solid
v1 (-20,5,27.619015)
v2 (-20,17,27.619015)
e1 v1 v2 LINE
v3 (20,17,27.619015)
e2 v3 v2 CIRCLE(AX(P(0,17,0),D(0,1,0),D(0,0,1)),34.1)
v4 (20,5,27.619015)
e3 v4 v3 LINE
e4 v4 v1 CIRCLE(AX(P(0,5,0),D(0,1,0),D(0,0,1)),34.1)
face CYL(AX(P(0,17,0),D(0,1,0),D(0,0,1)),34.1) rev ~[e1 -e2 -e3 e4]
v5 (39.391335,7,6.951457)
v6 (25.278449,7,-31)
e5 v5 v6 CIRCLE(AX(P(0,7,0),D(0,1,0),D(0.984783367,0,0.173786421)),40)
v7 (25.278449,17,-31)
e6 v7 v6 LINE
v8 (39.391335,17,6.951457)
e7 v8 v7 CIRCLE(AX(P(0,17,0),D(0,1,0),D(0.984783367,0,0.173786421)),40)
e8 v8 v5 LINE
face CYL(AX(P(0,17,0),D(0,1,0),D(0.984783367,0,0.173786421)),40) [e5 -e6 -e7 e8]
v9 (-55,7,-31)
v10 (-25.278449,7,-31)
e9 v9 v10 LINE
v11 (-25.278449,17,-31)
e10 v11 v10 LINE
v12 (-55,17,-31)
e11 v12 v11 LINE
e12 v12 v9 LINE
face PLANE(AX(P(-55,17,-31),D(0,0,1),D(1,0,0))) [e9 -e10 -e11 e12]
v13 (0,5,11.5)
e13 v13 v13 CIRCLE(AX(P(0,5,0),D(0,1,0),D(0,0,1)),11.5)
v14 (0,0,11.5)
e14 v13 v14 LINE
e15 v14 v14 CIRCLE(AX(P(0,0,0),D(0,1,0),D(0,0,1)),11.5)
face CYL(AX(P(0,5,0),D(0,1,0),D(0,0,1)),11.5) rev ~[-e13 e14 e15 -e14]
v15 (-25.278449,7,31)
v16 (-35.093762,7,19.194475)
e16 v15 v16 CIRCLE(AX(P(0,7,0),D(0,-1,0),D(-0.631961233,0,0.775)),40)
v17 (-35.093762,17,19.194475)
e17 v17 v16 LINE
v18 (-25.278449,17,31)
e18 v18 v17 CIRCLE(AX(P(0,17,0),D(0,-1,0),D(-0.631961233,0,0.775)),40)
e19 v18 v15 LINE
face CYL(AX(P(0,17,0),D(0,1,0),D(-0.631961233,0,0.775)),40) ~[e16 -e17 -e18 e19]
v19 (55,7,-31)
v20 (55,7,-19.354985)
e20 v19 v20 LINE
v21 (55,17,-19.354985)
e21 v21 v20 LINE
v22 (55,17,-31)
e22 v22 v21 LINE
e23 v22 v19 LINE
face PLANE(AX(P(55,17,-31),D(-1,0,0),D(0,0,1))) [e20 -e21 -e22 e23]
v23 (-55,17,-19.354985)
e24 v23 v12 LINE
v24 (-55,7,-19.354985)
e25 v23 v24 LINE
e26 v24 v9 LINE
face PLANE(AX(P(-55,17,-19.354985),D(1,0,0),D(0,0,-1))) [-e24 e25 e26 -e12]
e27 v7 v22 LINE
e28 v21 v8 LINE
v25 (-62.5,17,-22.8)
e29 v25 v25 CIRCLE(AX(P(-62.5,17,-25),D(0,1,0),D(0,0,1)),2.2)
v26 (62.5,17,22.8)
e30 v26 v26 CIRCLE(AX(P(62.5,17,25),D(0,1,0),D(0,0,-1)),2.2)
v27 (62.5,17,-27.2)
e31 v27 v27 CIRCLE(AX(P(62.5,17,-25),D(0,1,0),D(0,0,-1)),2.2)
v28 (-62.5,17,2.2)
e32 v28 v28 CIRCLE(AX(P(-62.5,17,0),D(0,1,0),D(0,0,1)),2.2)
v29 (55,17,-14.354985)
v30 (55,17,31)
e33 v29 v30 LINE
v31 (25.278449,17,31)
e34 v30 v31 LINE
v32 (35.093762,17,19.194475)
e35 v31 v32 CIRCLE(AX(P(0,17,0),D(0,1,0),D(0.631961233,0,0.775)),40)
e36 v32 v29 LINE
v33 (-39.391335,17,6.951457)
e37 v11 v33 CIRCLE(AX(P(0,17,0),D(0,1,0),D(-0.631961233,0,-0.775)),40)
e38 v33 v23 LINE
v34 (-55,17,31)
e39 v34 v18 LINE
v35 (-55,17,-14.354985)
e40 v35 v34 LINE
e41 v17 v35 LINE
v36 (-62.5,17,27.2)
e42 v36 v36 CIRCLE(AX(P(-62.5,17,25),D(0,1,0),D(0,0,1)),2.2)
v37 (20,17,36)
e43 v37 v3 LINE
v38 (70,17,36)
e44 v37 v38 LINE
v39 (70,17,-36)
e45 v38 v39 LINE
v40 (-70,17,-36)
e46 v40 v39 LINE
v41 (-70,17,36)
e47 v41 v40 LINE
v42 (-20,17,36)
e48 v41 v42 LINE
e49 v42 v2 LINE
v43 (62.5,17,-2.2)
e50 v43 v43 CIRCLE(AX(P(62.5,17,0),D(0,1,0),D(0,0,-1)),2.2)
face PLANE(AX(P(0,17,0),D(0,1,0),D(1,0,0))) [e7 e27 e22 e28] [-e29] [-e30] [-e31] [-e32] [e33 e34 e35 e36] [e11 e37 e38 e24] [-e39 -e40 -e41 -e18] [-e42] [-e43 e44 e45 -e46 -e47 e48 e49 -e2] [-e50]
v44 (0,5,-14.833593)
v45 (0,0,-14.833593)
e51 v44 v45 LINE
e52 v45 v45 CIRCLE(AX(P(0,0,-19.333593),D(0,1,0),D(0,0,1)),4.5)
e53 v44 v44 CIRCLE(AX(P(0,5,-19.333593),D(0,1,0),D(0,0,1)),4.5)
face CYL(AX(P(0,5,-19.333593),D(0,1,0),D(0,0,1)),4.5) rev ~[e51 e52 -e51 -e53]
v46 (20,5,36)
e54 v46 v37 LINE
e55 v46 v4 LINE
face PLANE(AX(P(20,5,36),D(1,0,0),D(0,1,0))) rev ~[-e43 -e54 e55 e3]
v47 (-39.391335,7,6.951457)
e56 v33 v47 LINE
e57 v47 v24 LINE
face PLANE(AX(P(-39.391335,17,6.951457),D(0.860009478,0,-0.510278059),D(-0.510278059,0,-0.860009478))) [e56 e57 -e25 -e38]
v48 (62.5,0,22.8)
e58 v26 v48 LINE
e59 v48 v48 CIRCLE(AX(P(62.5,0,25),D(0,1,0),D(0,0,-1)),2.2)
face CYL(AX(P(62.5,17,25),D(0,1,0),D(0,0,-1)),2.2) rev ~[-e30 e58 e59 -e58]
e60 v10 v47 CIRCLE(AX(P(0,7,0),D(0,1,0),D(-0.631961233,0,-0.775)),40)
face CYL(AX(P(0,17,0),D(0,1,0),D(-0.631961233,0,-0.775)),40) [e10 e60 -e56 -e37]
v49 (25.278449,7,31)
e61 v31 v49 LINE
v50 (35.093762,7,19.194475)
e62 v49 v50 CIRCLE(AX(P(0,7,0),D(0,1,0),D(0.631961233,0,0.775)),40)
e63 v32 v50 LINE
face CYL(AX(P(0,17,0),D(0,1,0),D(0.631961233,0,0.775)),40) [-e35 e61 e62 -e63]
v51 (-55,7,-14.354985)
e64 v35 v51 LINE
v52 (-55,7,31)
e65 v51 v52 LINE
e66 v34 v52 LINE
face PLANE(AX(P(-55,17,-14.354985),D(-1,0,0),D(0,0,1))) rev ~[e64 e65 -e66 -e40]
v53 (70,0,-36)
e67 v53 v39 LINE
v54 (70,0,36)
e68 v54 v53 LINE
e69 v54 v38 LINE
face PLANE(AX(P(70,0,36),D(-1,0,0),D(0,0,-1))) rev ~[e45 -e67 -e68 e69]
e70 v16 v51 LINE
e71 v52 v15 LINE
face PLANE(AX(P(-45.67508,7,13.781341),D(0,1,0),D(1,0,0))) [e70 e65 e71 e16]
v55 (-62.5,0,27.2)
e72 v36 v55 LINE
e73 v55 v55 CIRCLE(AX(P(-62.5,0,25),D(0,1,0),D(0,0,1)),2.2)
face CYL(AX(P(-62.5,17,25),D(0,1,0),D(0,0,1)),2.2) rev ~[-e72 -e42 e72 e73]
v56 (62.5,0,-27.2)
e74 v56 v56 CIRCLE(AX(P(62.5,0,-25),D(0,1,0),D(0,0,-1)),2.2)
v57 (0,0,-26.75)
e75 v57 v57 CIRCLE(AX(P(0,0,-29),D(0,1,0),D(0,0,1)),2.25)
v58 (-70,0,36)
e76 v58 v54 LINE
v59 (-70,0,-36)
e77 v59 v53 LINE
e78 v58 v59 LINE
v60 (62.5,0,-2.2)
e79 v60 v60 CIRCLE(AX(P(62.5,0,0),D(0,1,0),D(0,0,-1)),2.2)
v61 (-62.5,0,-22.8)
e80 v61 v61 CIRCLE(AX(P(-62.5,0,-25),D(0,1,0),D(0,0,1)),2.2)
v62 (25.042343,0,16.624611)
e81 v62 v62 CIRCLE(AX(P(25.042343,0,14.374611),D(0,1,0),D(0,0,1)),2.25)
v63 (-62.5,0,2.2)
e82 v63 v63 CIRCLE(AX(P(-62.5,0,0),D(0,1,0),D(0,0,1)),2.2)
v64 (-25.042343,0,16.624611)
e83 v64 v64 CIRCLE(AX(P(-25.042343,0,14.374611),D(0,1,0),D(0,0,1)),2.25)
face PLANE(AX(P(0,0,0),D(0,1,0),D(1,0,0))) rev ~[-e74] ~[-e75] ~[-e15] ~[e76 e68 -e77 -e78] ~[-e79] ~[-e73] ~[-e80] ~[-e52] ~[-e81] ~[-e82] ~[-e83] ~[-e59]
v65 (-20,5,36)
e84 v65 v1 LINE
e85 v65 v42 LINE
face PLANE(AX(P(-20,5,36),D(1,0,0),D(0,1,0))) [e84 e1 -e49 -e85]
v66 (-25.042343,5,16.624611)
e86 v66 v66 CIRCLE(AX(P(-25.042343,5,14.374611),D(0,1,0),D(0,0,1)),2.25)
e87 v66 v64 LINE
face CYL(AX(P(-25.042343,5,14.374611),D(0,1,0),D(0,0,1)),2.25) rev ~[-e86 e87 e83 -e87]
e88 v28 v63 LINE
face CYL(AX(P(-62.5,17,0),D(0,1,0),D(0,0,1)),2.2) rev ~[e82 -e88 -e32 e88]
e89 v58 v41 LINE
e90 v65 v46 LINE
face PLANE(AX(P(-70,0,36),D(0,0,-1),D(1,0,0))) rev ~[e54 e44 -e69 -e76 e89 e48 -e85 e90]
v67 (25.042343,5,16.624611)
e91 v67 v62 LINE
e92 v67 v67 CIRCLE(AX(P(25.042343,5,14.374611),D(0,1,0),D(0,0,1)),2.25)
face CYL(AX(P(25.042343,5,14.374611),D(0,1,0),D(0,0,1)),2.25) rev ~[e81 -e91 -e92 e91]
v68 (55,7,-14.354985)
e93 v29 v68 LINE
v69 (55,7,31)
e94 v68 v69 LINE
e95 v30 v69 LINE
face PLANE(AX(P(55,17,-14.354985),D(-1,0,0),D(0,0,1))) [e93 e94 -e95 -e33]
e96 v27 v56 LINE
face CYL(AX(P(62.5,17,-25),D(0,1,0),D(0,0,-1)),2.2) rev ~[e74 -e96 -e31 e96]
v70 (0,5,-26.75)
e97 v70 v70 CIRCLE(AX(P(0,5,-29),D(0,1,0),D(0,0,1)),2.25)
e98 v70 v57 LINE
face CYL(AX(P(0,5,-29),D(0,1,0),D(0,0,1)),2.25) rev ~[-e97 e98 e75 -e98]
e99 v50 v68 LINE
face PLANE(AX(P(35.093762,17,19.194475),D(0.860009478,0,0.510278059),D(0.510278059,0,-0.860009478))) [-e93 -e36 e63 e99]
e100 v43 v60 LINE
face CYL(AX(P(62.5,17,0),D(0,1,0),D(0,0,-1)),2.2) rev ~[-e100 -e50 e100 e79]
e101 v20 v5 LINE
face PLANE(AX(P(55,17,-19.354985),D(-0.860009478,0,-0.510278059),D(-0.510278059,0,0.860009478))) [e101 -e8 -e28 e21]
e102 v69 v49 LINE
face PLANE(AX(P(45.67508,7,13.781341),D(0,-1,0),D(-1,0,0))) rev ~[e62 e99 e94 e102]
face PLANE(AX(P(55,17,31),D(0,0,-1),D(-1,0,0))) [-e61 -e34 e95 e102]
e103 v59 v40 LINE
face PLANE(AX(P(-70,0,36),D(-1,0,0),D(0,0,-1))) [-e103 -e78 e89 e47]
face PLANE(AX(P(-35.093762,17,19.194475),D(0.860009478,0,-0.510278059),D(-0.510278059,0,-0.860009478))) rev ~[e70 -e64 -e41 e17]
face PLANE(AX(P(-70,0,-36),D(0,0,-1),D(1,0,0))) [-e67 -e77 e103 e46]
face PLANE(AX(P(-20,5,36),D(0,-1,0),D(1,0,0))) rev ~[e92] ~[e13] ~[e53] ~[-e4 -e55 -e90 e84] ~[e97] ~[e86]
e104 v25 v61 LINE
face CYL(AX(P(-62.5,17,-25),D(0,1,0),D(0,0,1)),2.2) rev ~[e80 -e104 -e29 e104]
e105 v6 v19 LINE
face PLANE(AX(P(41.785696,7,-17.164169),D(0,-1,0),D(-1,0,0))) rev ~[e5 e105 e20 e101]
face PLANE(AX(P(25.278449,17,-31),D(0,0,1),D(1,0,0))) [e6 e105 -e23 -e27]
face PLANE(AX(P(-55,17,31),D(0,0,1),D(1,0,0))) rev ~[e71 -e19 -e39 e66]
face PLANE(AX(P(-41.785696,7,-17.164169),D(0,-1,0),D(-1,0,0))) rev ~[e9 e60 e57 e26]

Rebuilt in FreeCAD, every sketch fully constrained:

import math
import FreeCAD as App
import Part
import Sketcher

V = App.Vector


def add_polygon(sketch, points):
    """Adds a closed chain of lines whose ends are joined by coincident constraints."""
    first, n = sketch.GeometryCount, len(points)
    for a, b in zip(points, points[1:] + points[:1]):
        sketch.addGeometry(Part.LineSegment(App.Vector(*a, 0), App.Vector(*b, 0)), False)
    for i in range(n):
        sketch.addConstraint(Sketcher.Constraint("Coincident", first + i, 2, first + (i + 1) % n, 1))

doc = App.newDocument("Part")
body = doc.addObject("PartDesign::Body", "Body")

sketch1 = doc.addObject("Sketcher::SketchObject", "Sketch")
body.addObject(sketch1)
sketch1.AttachmentSupport = (doc.XZ_Plane, [""])
sketch1.MapMode = "FlatFace"
add_polygon(sketch1, [(-70, -36), (-70, 36), (70, 36), (70, -36)])
sketch1.addConstraint(Sketcher.Constraint("Vertical", 0))
sketch1.addConstraint(Sketcher.Constraint("Horizontal", 1))
sketch1.addConstraint(Sketcher.Constraint("Vertical", 2))
sketch1.addConstraint(Sketcher.Constraint("Horizontal", 3))
sketch1.addConstraint(Sketcher.Constraint("Symmetric", 0, 2, 2, 2, -1, 1))
sketch1.addConstraint(Sketcher.Constraint("DistanceX", 1, 1, 1, 2, 140.0))
sketch1.addConstraint(Sketcher.Constraint("DistanceY", 0, 1, 0, 2, 72.0))
pad1 = doc.addObject("PartDesign::Pad", "Pad")
body.addObject(pad1)
pad1.Profile = sketch1
pad1.Length = 17
pad1.Reversed = True

sketch2 = doc.addObject("Sketcher::SketchObject", "Sketch001")
body.addObject(sketch2)
sketch2.AttachmentSupport = (doc.XZ_Plane, [""])
sketch2.MapMode = "FlatFace"
sketch2.AttachmentOffset = App.Placement(V(0, 0, -17), App.Rotation())
sketch2.addGeometry(Part.Circle(V(0, 0, 0), V(0, 0, 1), 34), False)
sketch2.addConstraint(Sketcher.Constraint("Coincident", 0, 3, -1, 1))
sketch2.addConstraint(Sketcher.Constraint("Diameter", 0, 68.2))
pocket1 = doc.addObject("PartDesign::Pocket", "Pocket")
body.addObject(pocket1)
pocket1.Profile = sketch2
pocket1.Length = 12
pocket1.Reversed = True

sketch3 = doc.addObject("Sketcher::SketchObject", "Sketch002")
body.addObject(sketch3)
sketch3.AttachmentSupport = (doc.XY_Plane, [""])
sketch3.MapMode = "FlatFace"
sketch3.AttachmentOffset = App.Placement(V(0, 0, 36), App.Rotation())
add_polygon(sketch3, [(-20, 29), (-20, 5), (20, 5), (20, 29)])
sketch3.addConstraint(Sketcher.Constraint("Vertical", 0))
sketch3.addConstraint(Sketcher.Constraint("Horizontal", 1))
sketch3.addConstraint(Sketcher.Constraint("Vertical", 2))
sketch3.addConstraint(Sketcher.Constraint("Horizontal", 3))
sketch3.addConstraint(Sketcher.Constraint("DistanceX", 1, 1, 1, 2, 40.0))
sketch3.addConstraint(Sketcher.Constraint("DistanceY", 0, 2, 0, 1, 24.0))
sketch3.addConstraint(Sketcher.Constraint("DistanceX", 0, 2, -1, 1, 20.0))
sketch3.addConstraint(Sketcher.Constraint("DistanceY", -1, 1, 0, 2, 5.0))
pocket2 = doc.addObject("PartDesign::Pocket", "Pocket001")
body.addObject(pocket2)
pocket2.Profile = sketch3
pocket2.Length = 10

sketch4 = doc.addObject("Sketcher::SketchObject", "Sketch003")
body.addObject(sketch4)
sketch4.AttachmentSupport = (doc.XZ_Plane, [""])
sketch4.MapMode = "FlatFace"
sketch4.AttachmentOffset = App.Placement(V(0, 0, -17), App.Rotation())
sketch4.addGeometry(Part.Circle(V(-62.5, -25, 0), V(0, 0, 1), 2.2), False)
sketch4.addGeometry(Part.Circle(V(-62.5, 0, 0), V(0, 0, 1), 2.2), False)
sketch4.addGeometry(Part.Circle(V(-62.5, 25, 0), V(0, 0, 1), 2.2), False)
sketch4.addGeometry(Part.Circle(V(62.5, 25, 0), V(0, 0, 1), 2.2), False)
sketch4.addGeometry(Part.Circle(V(62.5, 0, 0), V(0, 0, 1), 2.2), False)
sketch4.addGeometry(Part.Circle(V(62.5, -25, 0), V(0, 0, 1), 2.2), False)
sketch4.addConstraint(Sketcher.Constraint("Equal", 0, 1))
sketch4.addConstraint(Sketcher.Constraint("Equal", 1, 2))
sketch4.addConstraint(Sketcher.Constraint("Equal", 2, 3))
sketch4.addConstraint(Sketcher.Constraint("Equal", 3, 4))
sketch4.addConstraint(Sketcher.Constraint("Equal", 4, 5))
sketch4.addConstraint(Sketcher.Constraint("Symmetric", 0, 3, 3, 3, -1, 1))
sketch4.addConstraint(Sketcher.Constraint("Symmetric", 1, 3, 4, 3, -1, 1))
sketch4.addConstraint(Sketcher.Constraint("Symmetric", 2, 3, 5, 3, -1, 1))
sketch4.addConstraint(Sketcher.Constraint("Symmetric", 2, 3, 3, 3, -2))
sketch4.addConstraint(Sketcher.Constraint("PointOnObject", 1, 3, -1))
sketch4.addConstraint(Sketcher.Constraint("Vertical", 0, 3, 1, 3))
sketch4.addConstraint(Sketcher.Constraint("Diameter", 0, 4.4))
sketch4.addConstraint(Sketcher.Constraint("DistanceY", 0, 3, -1, 1, 25.0))
sketch4.addConstraint(Sketcher.Constraint("DistanceX", 2, 3, 3, 3, 125.0))
pocket3 = doc.addObject("PartDesign::Pocket", "Pocket002")
body.addObject(pocket3)
pocket3.Profile = sketch4
pocket3.Type = "ThroughAll"
pocket3.Reversed = True

sketch5 = doc.addObject("Sketcher::SketchObject", "Sketch004")
body.addObject(sketch5)
sketch5.AttachmentSupport = (doc.XZ_Plane, [""])
sketch5.MapMode = "FlatFace"
sketch5.AttachmentOffset = App.Placement(V(0, 0, -5), App.Rotation())
sketch5.addGeometry(Part.Circle(V(0, -29, 0), V(0, 0, 1), 2.2), False)
sketch5.addGeometry(Part.Circle(V(25, 14.4, 0), V(0, 0, 1), 2.2), False)
sketch5.addGeometry(Part.Circle(V(-25, 14.4, 0), V(0, 0, 1), 2.2), False)
sketch5.addGeometry(Part.Circle(V(0, -19.3, 0), V(0, 0, 1), 4.5), False)
sketch5.addConstraint(Sketcher.Constraint("Equal", 0, 1))
sketch5.addConstraint(Sketcher.Constraint("Equal", 1, 2))
sketch5.addConstraint(Sketcher.Constraint("Symmetric", 1, 3, 2, 3, -2))
sketch5.addConstraint(Sketcher.Constraint("PointOnObject", 0, 3, -2))
sketch5.addConstraint(Sketcher.Constraint("PointOnObject", 3, 3, -2))
sketch5.addConstraint(Sketcher.Constraint("Diameter", 3, 9.0))
sketch5.addConstraint(Sketcher.Constraint("Diameter", 0, 4.5))
sketch5.addConstraint(Sketcher.Constraint("DistanceY", 0, 3, -1, 1, 29.0))
sketch5.addConstraint(Sketcher.Constraint("DistanceY", -1, 1, 1, 3, 14.374611))
sketch5.addConstraint(Sketcher.Constraint("DistanceX", -1, 1, 1, 3, 25.042343))
sketch5.addConstraint(Sketcher.Constraint("DistanceY", 3, 3, -1, 1, 19.333593))
pocket4 = doc.addObject("PartDesign::Pocket", "Pocket003")
body.addObject(pocket4)
pocket4.Profile = sketch5
pocket4.Type = "ThroughAll"
pocket4.Reversed = True

sketch6 = doc.addObject("Sketcher::SketchObject", "Sketch005")
body.addObject(sketch6)
sketch6.AttachmentSupport = (doc.XZ_Plane, [""])
sketch6.MapMode = "FlatFace"
sketch6.AttachmentOffset = App.Placement(V(0, 0, -17), App.Rotation())
sketch6.addGeometry(Part.LineSegment(V(-25, -31, 0), V(-55, -31, 0)), False)
sketch6.addGeometry(Part.LineSegment(V(-55, -31, 0), V(-55, -19, 0)), False)
sketch6.addGeometry(Part.LineSegment(V(-55, -19, 0), V(-39, 7, 0)), False)
sketch6.addGeometry(Part.ArcOfCircle(Part.Circle(V(0, 0, 0), V(0, 0, 1), 40), math.radians(170), math.radians(231)), False)
sketch6.addGeometry(Part.LineSegment(V(-55, 31, 0), V(-25, 31, 0)), False)
sketch6.addGeometry(Part.ArcOfCircle(Part.Circle(V(0, 0, 0), V(0, 0, 1), 40), math.radians(129), math.radians(151)), False)
sketch6.addGeometry(Part.LineSegment(V(-35, 19, 0), V(-55, -14, 0)), False)
sketch6.addGeometry(Part.LineSegment(V(-55, -14, 0), V(-55, 31, 0)), False)
sketch6.addGeometry(Part.LineSegment(V(25, 31, 0), V(55, 31, 0)), False)
sketch6.addGeometry(Part.LineSegment(V(55, 31, 0), V(55, -14, 0)), False)
sketch6.addGeometry(Part.LineSegment(V(55, -14, 0), V(35, 19, 0)), False)
sketch6.addGeometry(Part.ArcOfCircle(Part.Circle(V(0, 0, 0), V(0, 0, 1), 40), math.radians(29), math.radians(51)), False)
sketch6.addGeometry(Part.LineSegment(V(55, -19, 0), V(55, -31, 0)), False)
sketch6.addGeometry(Part.LineSegment(V(55, -31, 0), V(25, -31, 0)), False)
sketch6.addGeometry(Part.ArcOfCircle(Part.Circle(V(0, 0, 0), V(0, 0, 1), 40), math.radians(-51), math.radians(10)), False)
sketch6.addGeometry(Part.LineSegment(V(39, 7, 0), V(55, -19, 0)), False)
sketch6.addConstraint(Sketcher.Constraint("Coincident", 0, 2, 1, 1))
sketch6.addConstraint(Sketcher.Constraint("Coincident", 1, 2, 2, 1))
sketch6.addConstraint(Sketcher.Constraint("Coincident", 2, 2, 3, 1))
sketch6.addConstraint(Sketcher.Constraint("Coincident", 3, 2, 0, 1))
sketch6.addConstraint(Sketcher.Constraint("Coincident", 4, 2, 5, 1))
sketch6.addConstraint(Sketcher.Constraint("Coincident", 5, 2, 6, 1))
sketch6.addConstraint(Sketcher.Constraint("Coincident", 6, 2, 7, 1))
sketch6.addConstraint(Sketcher.Constraint("Coincident", 7, 2, 4, 1))
sketch6.addConstraint(Sketcher.Constraint("Coincident", 8, 2, 9, 1))
sketch6.addConstraint(Sketcher.Constraint("Coincident", 9, 2, 10, 1))
sketch6.addConstraint(Sketcher.Constraint("Coincident", 10, 2, 11, 1))
sketch6.addConstraint(Sketcher.Constraint("Coincident", 11, 2, 8, 1))
sketch6.addConstraint(Sketcher.Constraint("Coincident", 12, 2, 13, 1))
sketch6.addConstraint(Sketcher.Constraint("Coincident", 13, 2, 14, 1))
sketch6.addConstraint(Sketcher.Constraint("Coincident", 14, 2, 15, 1))
sketch6.addConstraint(Sketcher.Constraint("Coincident", 15, 2, 12, 1))
sketch6.addConstraint(Sketcher.Constraint("Horizontal", 0))
sketch6.addConstraint(Sketcher.Constraint("Vertical", 1))
sketch6.addConstraint(Sketcher.Constraint("Horizontal", 4))
sketch6.addConstraint(Sketcher.Constraint("Vertical", 7))
sketch6.addConstraint(Sketcher.Constraint("Horizontal", 8))
sketch6.addConstraint(Sketcher.Constraint("Vertical", 9))
sketch6.addConstraint(Sketcher.Constraint("Vertical", 12))
sketch6.addConstraint(Sketcher.Constraint("Horizontal", 13))
sketch6.addConstraint(Sketcher.Constraint("Coincident", 3, 3, -1, 1))
sketch6.addConstraint(Sketcher.Constraint("Coincident", 5, 3, -1, 1))
sketch6.addConstraint(Sketcher.Constraint("Coincident", 11, 3, -1, 1))
sketch6.addConstraint(Sketcher.Constraint("Coincident", 14, 3, -1, 1))
sketch6.addConstraint(Sketcher.Constraint("Equal", 3, 5))
sketch6.addConstraint(Sketcher.Constraint("Equal", 5, 11))
sketch6.addConstraint(Sketcher.Constraint("Equal", 11, 14))
sketch6.addConstraint(Sketcher.Constraint("Symmetric", 0, 2, 8, 2, -1, 1))
sketch6.addConstraint(Sketcher.Constraint("Symmetric", 7, 2, 12, 2, -1, 1))
sketch6.addConstraint(Sketcher.Constraint("Symmetric", 7, 2, 8, 2, -2))
sketch6.addConstraint(Sketcher.Constraint("Parallel", 2, 6))
sketch6.addConstraint(Sketcher.Constraint("Parallel", 10, 15))
sketch6.addConstraint(Sketcher.Constraint("Horizontal", 6, 2, 9, 2))
sketch6.addConstraint(Sketcher.Constraint("Horizontal", 5, 2, 10, 2))
sketch6.addConstraint(Sketcher.Constraint("Horizontal", 2, 2, 14, 2))
sketch6.addConstraint(Sketcher.Constraint("Radius", 3, 40.0))
sketch6.addConstraint(Sketcher.Constraint("DistanceX", 0, 2, -1, 1, 55.0))
sketch6.addConstraint(Sketcher.Constraint("DistanceY", 0, 2, -1, 1, 31.0))
sketch6.addConstraint(Sketcher.Constraint("DistanceY", 1, 2, 6, 2, 5.0))
sketch6.addConstraint(Sketcher.Constraint("Distance", 2, 30.588549))
sketch6.addConstraint(Sketcher.Constraint("Distance", 6, 39.010571))
pocket5 = doc.addObject("PartDesign::Pocket", "Pocket004")
body.addObject(pocket5)
pocket5.Profile = sketch6
pocket5.Length = 10
pocket5.Reversed = True

sketch7 = doc.addObject("Sketcher::SketchObject", "Sketch006")
body.addObject(sketch7)
sketch7.AttachmentSupport = (doc.XZ_Plane, [""])
sketch7.MapMode = "FlatFace"
sketch7.AttachmentOffset = App.Placement(V(0, 0, -5), App.Rotation())
sketch7.addGeometry(Part.Circle(V(0, 0, 0), V(0, 0, 1), 12), False)
sketch7.addConstraint(Sketcher.Constraint("Coincident", 0, 3, -1, 1))
sketch7.addConstraint(Sketcher.Constraint("Diameter", 0, 23.0))
pocket6 = doc.addObject("PartDesign::Pocket", "Pocket005")
body.addObject(pocket6)
pocket6.Profile = sketch7
pocket6.Length = 10
pocket6.Reversed = True

doc.recompute()
